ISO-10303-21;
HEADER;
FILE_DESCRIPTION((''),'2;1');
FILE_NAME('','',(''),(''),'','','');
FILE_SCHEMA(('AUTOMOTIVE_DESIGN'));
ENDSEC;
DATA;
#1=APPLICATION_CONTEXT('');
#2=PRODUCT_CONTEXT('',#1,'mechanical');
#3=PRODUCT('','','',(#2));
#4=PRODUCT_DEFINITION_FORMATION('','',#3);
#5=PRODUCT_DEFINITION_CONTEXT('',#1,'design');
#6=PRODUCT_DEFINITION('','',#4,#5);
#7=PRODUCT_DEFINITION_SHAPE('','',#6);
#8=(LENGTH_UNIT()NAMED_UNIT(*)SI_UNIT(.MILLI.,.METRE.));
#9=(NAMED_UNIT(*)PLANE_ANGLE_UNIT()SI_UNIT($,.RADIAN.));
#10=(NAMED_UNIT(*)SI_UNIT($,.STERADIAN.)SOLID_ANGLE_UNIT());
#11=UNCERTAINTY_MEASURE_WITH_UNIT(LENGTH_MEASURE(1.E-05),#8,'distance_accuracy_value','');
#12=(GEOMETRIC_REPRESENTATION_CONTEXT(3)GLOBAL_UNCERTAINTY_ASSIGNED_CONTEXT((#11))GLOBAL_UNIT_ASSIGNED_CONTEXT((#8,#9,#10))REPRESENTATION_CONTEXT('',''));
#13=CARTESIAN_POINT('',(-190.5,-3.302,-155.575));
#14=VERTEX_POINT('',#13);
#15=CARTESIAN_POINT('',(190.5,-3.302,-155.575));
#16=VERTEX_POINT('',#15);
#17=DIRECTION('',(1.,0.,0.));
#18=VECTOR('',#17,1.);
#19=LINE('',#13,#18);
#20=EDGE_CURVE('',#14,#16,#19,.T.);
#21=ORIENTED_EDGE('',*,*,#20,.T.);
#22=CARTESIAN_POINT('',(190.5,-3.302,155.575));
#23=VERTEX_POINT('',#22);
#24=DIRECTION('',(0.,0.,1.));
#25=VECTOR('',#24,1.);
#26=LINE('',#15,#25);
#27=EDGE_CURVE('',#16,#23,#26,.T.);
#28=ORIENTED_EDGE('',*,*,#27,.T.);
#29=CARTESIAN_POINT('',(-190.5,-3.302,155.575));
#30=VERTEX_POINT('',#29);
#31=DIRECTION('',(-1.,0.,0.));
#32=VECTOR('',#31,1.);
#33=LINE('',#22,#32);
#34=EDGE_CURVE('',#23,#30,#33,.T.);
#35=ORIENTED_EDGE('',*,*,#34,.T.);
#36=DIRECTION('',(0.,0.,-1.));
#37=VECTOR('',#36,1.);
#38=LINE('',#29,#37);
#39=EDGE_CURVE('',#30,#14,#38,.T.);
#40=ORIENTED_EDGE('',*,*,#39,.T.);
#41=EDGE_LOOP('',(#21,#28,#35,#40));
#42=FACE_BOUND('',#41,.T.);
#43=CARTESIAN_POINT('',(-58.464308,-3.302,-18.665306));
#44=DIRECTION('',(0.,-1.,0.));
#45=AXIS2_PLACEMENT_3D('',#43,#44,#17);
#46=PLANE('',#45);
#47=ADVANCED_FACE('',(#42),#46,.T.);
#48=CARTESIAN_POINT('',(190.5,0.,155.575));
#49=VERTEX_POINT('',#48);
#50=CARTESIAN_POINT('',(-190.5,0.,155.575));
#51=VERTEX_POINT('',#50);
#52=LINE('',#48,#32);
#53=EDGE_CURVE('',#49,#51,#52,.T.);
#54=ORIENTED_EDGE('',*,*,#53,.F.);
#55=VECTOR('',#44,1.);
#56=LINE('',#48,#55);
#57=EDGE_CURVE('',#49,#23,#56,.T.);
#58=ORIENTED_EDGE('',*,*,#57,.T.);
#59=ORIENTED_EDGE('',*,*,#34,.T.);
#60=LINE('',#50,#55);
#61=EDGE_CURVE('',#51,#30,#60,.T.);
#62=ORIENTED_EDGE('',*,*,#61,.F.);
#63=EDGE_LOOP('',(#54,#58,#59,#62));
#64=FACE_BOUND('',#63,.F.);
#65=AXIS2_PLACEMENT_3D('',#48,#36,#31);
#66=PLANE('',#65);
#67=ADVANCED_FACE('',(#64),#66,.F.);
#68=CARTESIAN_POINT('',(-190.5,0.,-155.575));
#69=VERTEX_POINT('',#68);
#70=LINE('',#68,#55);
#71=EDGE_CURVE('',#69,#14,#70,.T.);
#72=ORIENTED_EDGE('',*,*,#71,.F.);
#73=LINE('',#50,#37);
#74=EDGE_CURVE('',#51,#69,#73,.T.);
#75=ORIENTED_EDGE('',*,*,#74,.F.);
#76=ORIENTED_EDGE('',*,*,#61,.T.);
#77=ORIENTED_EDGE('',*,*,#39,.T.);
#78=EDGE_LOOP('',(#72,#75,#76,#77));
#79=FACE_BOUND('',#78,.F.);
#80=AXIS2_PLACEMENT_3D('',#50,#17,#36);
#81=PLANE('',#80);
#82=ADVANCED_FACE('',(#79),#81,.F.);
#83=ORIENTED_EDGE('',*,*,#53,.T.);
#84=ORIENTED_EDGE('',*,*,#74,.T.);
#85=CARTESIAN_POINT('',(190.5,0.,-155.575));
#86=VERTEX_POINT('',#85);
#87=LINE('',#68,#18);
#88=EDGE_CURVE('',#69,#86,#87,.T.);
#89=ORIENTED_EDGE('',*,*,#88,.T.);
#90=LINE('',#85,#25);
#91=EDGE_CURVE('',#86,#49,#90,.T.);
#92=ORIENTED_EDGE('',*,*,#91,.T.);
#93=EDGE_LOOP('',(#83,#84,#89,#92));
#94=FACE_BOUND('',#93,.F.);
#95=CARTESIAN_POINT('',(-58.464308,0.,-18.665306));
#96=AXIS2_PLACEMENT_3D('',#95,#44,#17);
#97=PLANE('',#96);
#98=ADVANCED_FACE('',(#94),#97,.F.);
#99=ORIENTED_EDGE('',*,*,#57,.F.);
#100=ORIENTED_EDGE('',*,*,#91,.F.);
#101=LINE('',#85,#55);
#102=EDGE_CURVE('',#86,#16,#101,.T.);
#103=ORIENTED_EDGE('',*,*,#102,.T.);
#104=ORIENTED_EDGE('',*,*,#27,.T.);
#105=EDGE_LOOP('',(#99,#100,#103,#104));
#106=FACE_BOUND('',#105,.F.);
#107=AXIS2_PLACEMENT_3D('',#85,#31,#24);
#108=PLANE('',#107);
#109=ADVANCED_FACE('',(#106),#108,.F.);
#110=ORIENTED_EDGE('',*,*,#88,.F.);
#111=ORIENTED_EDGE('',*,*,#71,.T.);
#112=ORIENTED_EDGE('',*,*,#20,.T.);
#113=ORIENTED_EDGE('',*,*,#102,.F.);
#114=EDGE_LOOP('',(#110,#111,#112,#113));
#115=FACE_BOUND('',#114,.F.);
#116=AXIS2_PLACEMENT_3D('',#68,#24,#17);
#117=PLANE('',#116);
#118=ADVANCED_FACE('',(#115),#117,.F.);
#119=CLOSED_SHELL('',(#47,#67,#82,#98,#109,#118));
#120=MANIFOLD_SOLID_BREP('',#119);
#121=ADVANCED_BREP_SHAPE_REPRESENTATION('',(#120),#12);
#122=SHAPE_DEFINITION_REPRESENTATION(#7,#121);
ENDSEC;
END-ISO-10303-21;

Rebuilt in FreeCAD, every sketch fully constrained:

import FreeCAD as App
import Part
import Sketcher
from FreeCAD import Vector
Q = App.Units.Quantity


def add_polygon(sketch, points):
    """Adds a closed chain of lines whose ends are joined by coincident constraints."""
    first, n = sketch.GeometryCount, len(points)
    for a, b in zip(points, points[1:] + points[:1]):
        sketch.addGeometry(Part.LineSegment(App.Vector(*a, 0), App.Vector(*b, 0)), False)
    for i in range(n):
        sketch.addConstraint(Sketcher.Constraint("Coincident", first + i, 2, first + (i + 1) % n, 1))

doc = App.newDocument("Part")
body = doc.addObject("PartDesign::Body", "Body")

sketch1 = doc.addObject("Sketcher::SketchObject", "Sketch")
body.addObject(sketch1)
sketch1.AttachmentSupport = (doc.XZ_Plane, [""])
sketch1.MapMode = "FlatFace"
add_polygon(sketch1, [(190, -156), (190, 156), (-190, 156), (-190, -156)])
sketch1.addConstraint([
    Sketcher.Constraint("Vertical", 0),
    Sketcher.Constraint("Horizontal", 1),
    Sketcher.Constraint("Vertical", 2),
    Sketcher.Constraint("Horizontal", 3),
    Sketcher.Constraint("Symmetric", 0, 2, 2, 2, -1, 1),
    Sketcher.Constraint("DistanceX", 1, 2, 1, 1, Q("15 in")),
    Sketcher.Constraint("DistanceY", 0, 1, 0, 2, Q("12.25 in")),
])
pad1 = doc.addObject("PartDesign::Pad", "Pad")
body.addObject(pad1)
pad1.Profile = sketch1
pad1.Length = Q("0.13 in")

doc.recompute()
